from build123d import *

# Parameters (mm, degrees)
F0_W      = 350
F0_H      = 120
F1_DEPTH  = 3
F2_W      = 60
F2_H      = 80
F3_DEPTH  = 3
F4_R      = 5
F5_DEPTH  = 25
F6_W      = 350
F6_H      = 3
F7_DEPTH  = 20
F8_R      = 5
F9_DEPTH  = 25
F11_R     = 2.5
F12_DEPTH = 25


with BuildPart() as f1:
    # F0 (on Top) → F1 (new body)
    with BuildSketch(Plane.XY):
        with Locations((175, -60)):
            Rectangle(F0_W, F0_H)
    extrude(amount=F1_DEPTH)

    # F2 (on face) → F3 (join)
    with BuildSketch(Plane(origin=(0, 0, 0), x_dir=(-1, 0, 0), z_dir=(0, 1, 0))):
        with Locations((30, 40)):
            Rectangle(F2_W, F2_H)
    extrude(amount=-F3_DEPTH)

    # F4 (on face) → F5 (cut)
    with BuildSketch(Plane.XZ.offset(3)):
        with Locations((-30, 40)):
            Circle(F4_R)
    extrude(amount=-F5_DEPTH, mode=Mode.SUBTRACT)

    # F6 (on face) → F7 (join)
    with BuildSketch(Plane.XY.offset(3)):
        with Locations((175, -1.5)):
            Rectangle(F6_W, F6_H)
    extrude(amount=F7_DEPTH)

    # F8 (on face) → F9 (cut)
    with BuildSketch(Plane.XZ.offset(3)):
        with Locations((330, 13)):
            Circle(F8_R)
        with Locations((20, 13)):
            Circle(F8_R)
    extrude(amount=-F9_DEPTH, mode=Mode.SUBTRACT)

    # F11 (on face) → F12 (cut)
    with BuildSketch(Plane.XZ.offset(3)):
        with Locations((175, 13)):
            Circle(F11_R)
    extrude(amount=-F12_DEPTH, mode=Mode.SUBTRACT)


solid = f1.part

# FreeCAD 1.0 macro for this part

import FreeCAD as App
import Part
import Sketcher

V = App.Vector


def add_polygon(sketch, points):
    """Adds a closed chain of lines whose ends are joined by coincident constraints."""
    first, n = sketch.GeometryCount, len(points)
    for a, b in zip(points, points[1:] + points[:1]):
        sketch.addGeometry(Part.LineSegment(App.Vector(*a, 0), App.Vector(*b, 0)), False)
    for i in range(n):
        sketch.addConstraint(Sketcher.Constraint("Coincident", first + i, 2, first + (i + 1) % n, 1))

doc = App.newDocument("Part")
body = doc.addObject("PartDesign::Body", "Body")

sketch1 = doc.addObject("Sketcher::SketchObject", "Sketch")
body.addObject(sketch1)
sketch1.AttachmentSupport = (doc.XY_Plane, [""])
sketch1.MapMode = "FlatFace"
add_polygon(sketch1, [(0, 0), (0, -120), (350, -120), (350, 0)])
sketch1.addConstraint(Sketcher.Constraint("Vertical", 0))
sketch1.addConstraint(Sketcher.Constraint("Horizontal", 1))
sketch1.addConstraint(Sketcher.Constraint("Vertical", 2))
sketch1.addConstraint(Sketcher.Constraint("Horizontal", 3))
sketch1.addConstraint(Sketcher.Constraint("Coincident", 3, 2, -1, 1))
sketch1.addConstraint(Sketcher.Constraint("DistanceX", 1, 1, 1, 2, 350.0))
sketch1.addConstraint(Sketcher.Constraint("DistanceY", 0, 2, 0, 1, 120.0))
pad1 = doc.addObject("PartDesign::Pad", "Pad")
body.addObject(pad1)
pad1.Profile = sketch1
pad1.Length = 3

sketch2 = doc.addObject("Sketcher::SketchObject", "Sketch001")
body.addObject(sketch2)
sketch2.AttachmentSupport = (doc.XZ_Plane, [""])
sketch2.MapMode = "FlatFace"
add_polygon(sketch2, [(0, 80), (0, 0), (-60, 0), (-60, 80)])
sketch2.addConstraint(Sketcher.Constraint("Vertical", 0))
sketch2.addConstraint(Sketcher.Constraint("Horizontal", 1))
sketch2.addConstraint(Sketcher.Constraint("Vertical", 2))
sketch2.addConstraint(Sketcher.Constraint("Horizontal", 3))
sketch2.addConstraint(Sketcher.Constraint("Coincident", 0, 2, -1, 1))
sketch2.addConstraint(Sketcher.Constraint("DistanceX", 1, 2, 1, 1, 60.0))
sketch2.addConstraint(Sketcher.Constraint("DistanceY", 0, 2, 0, 1, 80.0))
pad2 = doc.addObject("PartDesign::Pad", "Pad001")
body.addObject(pad2)
pad2.Profile = sketch2
pad2.Length = 3

sketch3 = doc.addObject("Sketcher::SketchObject", "Sketch002")
body.addObject(sketch3)
sketch3.AttachmentSupport = (doc.XZ_Plane, [""])
sketch3.MapMode = "FlatFace"
sketch3.AttachmentOffset = App.Placement(V(0, 0, 3), App.Rotation())
sketch3.addGeometry(Part.Circle(V(-30, 40, 0), V(0, 0, 1), 5), False)
sketch3.addConstraint(Sketcher.Constraint("Diameter", 0, 10.0))
sketch3.addConstraint(Sketcher.Constraint("DistanceX", 0, 3, -1, 1, 30.0))
sketch3.addConstraint(Sketcher.Constraint("DistanceY", -1, 1, 0, 3, 40.0))
pocket1 = doc.addObject("PartDesign::Pocket", "Pocket")
body.addObject(pocket1)
pocket1.Profile = sketch3
pocket1.Length = 25

sketch4 = doc.addObject("Sketcher::SketchObject", "Sketch003")
body.addObject(sketch4)
sketch4.AttachmentSupport = (doc.XY_Plane, [""])
sketch4.MapMode = "FlatFace"
sketch4.AttachmentOffset = App.Placement(V(0, 0, 3), App.Rotation())
add_polygon(sketch4, [(0, 0), (0, -3), (350, -3), (350, 0)])
sketch4.addConstraint(Sketcher.Constraint("Vertical", 0))
sketch4.addConstraint(Sketcher.Constraint("Horizontal", 1))
sketch4.addConstraint(Sketcher.Constraint("Vertical", 2))
sketch4.addConstraint(Sketcher.Constraint("Horizontal", 3))
sketch4.addConstraint(Sketcher.Constraint("Coincident", 3, 2, -1, 1))
sketch4.addConstraint(Sketcher.Constraint("DistanceX", 1, 1, 1, 2, 350.0))
sketch4.addConstraint(Sketcher.Constraint("DistanceY", 0, 2, 0, 1, 3.0))
pad3 = doc.addObject("PartDesign::Pad", "Pad002")
body.addObject(pad3)
pad3.Profile = sketch4
pad3.Length = 20

sketch5 = doc.addObject("Sketcher::SketchObject", "Sketch004")
body.addObject(sketch5)
sketch5.AttachmentSupport = (doc.XZ_Plane, [""])
sketch5.MapMode = "FlatFace"
sketch5.AttachmentOffset = App.Placement(V(0, 0, 3), App.Rotation())
sketch5.addGeometry(Part.Circle(V(330, 13, 0), V(0, 0, 1), 5), False)
sketch5.addGeometry(Part.Circle(V(20, 13, 0), V(0, 0, 1), 5), False)
sketch5.addConstraint(Sketcher.Constraint("Equal", 0, 1))
sketch5.addConstraint(Sketcher.Constraint("Horizontal", 0, 3, 1, 3))
sketch5.addConstraint(Sketcher.Constraint("Diameter", 0, 10.0))
sketch5.addConstraint(Sketcher.Constraint("DistanceX", -1, 1, 0, 3, 330.0))
sketch5.addConstraint(Sketcher.Constraint("DistanceY", -1, 1, 0, 3, 13.0))
sketch5.addConstraint(Sketcher.Constraint("DistanceX", -1, 1, 1, 3, 20.0))
pocket2 = doc.addObject("PartDesign::Pocket", "Pocket001")
body.addObject(pocket2)
pocket2.Profile = sketch5
pocket2.Length = 25

sketch6 = doc.addObject("Sketcher::SketchObject", "Sketch005")
body.addObject(sketch6)
sketch6.AttachmentSupport = (doc.XZ_Plane, [""])
sketch6.MapMode = "FlatFace"
sketch6.AttachmentOffset = App.Placement(V(0, 0, 3), App.Rotation())
sketch6.addGeometry(Part.Circle(V(175, 13, 0), V(0, 0, 1), 2.5), False)
sketch6.addConstraint(Sketcher.Constraint("Diameter", 0, 5.0))
sketch6.addConstraint(Sketcher.Constraint("DistanceX", -1, 1, 0, 3, 175.0))
sketch6.addConstraint(Sketcher.Constraint("DistanceY", -1, 1, 0, 3, 13.0))
pocket3 = doc.addObject("PartDesign::Pocket", "Pocket002")
body.addObject(pocket3)
pocket3.Profile = sketch6
pocket3.Length = 25

doc.recompute()
